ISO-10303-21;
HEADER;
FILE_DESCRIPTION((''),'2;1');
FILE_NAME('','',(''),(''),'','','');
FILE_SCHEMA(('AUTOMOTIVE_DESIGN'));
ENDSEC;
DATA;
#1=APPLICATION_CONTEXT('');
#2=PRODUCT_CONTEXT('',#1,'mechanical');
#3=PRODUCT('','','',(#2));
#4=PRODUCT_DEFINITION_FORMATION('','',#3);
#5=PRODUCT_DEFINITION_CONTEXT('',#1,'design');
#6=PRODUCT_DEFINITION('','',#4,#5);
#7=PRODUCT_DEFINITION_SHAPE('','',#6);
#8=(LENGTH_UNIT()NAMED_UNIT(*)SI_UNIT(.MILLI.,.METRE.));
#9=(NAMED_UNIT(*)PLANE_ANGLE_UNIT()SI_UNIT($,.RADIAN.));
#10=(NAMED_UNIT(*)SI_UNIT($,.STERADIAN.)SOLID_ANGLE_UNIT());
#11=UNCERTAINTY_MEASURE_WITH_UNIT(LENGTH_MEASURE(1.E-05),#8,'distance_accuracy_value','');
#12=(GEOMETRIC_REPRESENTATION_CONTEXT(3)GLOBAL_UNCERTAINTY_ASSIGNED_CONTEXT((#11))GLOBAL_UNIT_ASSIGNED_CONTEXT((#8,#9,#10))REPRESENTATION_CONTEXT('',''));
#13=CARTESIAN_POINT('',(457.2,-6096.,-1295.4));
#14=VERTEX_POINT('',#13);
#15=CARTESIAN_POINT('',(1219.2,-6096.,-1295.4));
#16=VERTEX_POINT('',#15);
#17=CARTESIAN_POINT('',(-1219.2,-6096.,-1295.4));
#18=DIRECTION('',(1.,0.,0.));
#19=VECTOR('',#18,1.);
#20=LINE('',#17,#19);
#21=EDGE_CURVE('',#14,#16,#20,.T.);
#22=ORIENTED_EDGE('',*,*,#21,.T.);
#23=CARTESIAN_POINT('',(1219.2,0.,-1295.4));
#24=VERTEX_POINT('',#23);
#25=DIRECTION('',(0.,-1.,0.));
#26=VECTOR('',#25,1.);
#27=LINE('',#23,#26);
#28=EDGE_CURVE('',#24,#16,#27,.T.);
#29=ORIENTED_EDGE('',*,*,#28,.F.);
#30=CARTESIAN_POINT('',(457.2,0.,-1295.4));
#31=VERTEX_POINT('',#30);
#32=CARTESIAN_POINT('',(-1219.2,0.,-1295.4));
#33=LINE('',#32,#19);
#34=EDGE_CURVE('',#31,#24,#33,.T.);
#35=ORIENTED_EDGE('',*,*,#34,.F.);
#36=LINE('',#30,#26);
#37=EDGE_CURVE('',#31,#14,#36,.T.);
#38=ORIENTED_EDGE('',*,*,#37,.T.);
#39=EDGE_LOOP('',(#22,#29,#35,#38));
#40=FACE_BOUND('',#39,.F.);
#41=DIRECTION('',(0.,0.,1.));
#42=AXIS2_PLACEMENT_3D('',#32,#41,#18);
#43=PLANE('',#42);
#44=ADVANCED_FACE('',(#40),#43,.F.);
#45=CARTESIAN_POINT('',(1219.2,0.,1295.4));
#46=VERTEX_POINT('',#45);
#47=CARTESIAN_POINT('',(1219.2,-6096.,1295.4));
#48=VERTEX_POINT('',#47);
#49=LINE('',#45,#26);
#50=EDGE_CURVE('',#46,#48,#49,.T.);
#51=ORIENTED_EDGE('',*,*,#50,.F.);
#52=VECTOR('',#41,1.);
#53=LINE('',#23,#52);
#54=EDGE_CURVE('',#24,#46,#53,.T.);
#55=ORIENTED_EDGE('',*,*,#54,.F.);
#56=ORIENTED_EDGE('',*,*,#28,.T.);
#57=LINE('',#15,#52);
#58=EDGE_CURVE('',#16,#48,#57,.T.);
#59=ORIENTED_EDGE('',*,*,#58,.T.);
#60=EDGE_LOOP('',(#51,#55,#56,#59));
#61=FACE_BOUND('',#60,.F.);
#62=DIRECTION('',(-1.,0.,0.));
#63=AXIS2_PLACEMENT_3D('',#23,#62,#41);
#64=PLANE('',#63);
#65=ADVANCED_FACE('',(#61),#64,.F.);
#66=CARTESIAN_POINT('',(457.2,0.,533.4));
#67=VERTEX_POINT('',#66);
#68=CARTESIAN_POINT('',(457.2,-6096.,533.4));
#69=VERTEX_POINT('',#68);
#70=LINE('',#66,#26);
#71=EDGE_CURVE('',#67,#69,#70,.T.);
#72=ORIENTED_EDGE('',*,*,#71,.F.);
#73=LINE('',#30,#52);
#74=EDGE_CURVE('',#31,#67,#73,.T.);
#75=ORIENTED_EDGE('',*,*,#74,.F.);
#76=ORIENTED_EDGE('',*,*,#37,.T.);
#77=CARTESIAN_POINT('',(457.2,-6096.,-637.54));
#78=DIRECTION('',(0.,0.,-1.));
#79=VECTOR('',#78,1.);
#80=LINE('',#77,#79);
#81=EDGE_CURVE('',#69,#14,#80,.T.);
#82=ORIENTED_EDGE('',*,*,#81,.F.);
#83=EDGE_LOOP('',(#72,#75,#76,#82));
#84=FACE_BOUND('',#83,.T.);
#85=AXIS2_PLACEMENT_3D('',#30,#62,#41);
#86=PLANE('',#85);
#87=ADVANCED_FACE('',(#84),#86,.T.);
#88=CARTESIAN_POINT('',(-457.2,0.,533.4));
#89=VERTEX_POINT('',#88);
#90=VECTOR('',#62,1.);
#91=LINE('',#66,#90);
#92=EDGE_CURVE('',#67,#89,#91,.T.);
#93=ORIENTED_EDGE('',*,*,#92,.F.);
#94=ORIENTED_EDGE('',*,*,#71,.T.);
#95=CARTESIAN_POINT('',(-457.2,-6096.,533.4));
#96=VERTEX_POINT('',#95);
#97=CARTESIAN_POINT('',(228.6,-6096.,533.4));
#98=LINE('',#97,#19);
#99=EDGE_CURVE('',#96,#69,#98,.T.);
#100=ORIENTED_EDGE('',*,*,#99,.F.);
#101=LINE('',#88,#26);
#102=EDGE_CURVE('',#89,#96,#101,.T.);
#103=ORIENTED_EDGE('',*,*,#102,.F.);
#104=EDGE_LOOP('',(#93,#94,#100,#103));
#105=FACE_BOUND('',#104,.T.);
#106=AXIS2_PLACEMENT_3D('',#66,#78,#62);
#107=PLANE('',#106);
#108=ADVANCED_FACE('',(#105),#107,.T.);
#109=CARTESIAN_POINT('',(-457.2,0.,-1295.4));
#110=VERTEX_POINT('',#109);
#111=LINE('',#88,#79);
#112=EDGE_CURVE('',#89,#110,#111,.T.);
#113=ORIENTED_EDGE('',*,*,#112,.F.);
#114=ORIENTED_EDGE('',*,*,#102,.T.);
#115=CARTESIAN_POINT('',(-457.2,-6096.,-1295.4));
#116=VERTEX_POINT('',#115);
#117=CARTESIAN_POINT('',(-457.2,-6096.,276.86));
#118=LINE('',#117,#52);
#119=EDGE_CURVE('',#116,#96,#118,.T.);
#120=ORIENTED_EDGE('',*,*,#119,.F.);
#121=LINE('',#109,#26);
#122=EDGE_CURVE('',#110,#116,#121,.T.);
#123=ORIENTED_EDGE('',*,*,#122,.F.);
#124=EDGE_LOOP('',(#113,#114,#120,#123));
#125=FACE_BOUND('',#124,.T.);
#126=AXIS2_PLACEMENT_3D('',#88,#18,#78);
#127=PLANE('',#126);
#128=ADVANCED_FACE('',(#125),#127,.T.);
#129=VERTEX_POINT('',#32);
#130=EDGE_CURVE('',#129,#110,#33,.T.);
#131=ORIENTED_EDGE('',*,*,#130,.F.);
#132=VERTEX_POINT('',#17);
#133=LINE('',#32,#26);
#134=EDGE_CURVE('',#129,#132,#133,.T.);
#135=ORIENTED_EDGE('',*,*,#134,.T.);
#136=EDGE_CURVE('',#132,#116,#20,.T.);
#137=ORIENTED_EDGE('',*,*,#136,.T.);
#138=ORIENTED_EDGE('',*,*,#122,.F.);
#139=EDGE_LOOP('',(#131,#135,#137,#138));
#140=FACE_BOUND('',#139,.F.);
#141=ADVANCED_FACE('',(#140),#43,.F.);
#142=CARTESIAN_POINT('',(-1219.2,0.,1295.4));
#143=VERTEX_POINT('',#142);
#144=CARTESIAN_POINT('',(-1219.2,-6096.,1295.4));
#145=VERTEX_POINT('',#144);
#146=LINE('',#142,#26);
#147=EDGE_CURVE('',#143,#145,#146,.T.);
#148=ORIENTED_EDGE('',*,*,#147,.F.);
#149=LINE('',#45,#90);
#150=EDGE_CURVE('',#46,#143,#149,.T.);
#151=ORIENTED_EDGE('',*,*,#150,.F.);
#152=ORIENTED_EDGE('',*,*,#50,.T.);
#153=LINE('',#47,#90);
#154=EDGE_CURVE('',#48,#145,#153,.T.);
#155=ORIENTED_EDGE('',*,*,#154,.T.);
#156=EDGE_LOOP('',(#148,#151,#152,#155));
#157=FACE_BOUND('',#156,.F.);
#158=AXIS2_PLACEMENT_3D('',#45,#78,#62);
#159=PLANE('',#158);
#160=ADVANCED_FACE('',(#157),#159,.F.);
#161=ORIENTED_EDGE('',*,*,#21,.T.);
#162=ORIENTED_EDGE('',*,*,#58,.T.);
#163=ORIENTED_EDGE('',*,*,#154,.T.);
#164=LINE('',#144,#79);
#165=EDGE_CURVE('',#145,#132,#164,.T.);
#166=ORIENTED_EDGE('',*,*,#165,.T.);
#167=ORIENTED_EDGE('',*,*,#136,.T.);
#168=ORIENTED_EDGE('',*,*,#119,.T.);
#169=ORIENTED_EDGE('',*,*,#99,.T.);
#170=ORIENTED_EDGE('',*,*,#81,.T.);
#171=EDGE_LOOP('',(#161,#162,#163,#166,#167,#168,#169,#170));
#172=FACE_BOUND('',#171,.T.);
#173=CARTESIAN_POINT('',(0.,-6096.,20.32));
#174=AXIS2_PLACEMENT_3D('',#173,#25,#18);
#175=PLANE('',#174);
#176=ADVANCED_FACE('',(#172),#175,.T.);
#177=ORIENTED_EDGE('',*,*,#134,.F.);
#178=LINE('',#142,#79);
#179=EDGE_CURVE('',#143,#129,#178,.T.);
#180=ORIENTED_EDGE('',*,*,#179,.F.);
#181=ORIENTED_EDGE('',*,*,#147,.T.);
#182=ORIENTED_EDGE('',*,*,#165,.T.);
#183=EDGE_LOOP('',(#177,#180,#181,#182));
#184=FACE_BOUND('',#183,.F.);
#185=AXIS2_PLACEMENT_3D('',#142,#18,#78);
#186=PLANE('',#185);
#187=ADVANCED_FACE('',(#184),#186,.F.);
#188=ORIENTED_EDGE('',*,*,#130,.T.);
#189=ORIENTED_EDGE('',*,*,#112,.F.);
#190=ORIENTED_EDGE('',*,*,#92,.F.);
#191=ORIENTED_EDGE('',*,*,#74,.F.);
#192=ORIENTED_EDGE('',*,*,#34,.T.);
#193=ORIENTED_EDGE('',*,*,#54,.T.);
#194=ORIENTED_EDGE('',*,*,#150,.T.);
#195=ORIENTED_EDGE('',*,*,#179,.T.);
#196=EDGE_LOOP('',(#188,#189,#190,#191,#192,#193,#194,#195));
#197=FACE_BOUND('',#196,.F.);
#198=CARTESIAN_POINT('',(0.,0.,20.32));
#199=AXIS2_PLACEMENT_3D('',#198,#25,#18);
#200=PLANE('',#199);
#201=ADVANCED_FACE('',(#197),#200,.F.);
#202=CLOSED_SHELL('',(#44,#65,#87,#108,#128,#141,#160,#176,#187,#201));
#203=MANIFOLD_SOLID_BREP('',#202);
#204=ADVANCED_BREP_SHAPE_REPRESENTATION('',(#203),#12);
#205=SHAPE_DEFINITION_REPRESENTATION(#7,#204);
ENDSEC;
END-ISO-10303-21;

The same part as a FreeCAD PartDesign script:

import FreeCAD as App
import Part
import Sketcher

V = App.Vector
Q = App.Units.Quantity


def add_polygon(sketch, points):
    """Adds a closed chain of lines whose ends are joined by coincident constraints."""
    first, n = sketch.GeometryCount, len(points)
    for a, b in zip(points, points[1:] + points[:1]):
        sketch.addGeometry(Part.LineSegment(App.Vector(*a, 0), App.Vector(*b, 0)), False)
    for i in range(n):
        sketch.addConstraint(Sketcher.Constraint("Coincident", first + i, 2, first + (i + 1) % n, 1))

doc = App.newDocument("Part")
body = doc.addObject("PartDesign::Body", "Body")

sketch1 = body.newObject("Sketcher::SketchObject", "Sketch")
sketch1.AttachmentSupport = (doc.getObject("XZ_Plane"), [""])
sketch1.MapMode = "FlatFace"
add_polygon(sketch1, [(1219.2, 1295.4), (-1219.2, 1295.4), (-1219.2, -1295.4), (1219.2, -1295.4)])
sketch1.addConstraint(Sketcher.Constraint("Horizontal", 0))
sketch1.addConstraint(Sketcher.Constraint("Vertical", 1))
sketch1.addConstraint(Sketcher.Constraint("Horizontal", 2))
sketch1.addConstraint(Sketcher.Constraint("Vertical", 3))
sketch1.addConstraint(Sketcher.Constraint("Symmetric", 0, 2, 2, 2, -1, 1))
sketch1.addConstraint(Sketcher.Constraint("DistanceX", 0, 2, 0, 1, Q("96 in")))
sketch1.addConstraint(Sketcher.Constraint("DistanceY", 1, 2, 1, 1, Q("102 in")))
pad1 = body.newObject("PartDesign::Pad", "Pad")
pad1.Profile = sketch1
pad1.Length = Q("240 in")

sketch2 = body.newObject("Sketcher::SketchObject", "Sketch001")
sketch2.AttachmentSupport = (doc.getObject("XZ_Plane"), [""])
sketch2.MapMode = "FlatFace"
add_polygon(sketch2, [(-457.2, 533.4), (-457.2, -1295.4), (457.2, -1295.4), (457.2, 533.4)])
sketch2.addConstraint(Sketcher.Constraint("Vertical", 0))
sketch2.addConstraint(Sketcher.Constraint("Horizontal", 1))
sketch2.addConstraint(Sketcher.Constraint("Vertical", 2))
sketch2.addConstraint(Sketcher.Constraint("Horizontal", 3))
sketch2.addConstraint(Sketcher.Constraint("DistanceX", 1, 1, 1, 2, Q("36 in")))
sketch2.addConstraint(Sketcher.Constraint("DistanceY", 0, 2, 0, 1, Q("72 in")))
sketch2.addConstraint(Sketcher.Constraint("DistanceX", 0, 2, -1, 1, Q("18 in")))
sketch2.addConstraint(Sketcher.Constraint("DistanceY", 0, 2, -1, 1, Q("51 in")))
pocket1 = body.newObject("PartDesign::Pocket", "Pocket")
pocket1.Profile = sketch2
pocket1.Type = "ThroughAll"
pocket1.Reversed = True

doc.recompute()
